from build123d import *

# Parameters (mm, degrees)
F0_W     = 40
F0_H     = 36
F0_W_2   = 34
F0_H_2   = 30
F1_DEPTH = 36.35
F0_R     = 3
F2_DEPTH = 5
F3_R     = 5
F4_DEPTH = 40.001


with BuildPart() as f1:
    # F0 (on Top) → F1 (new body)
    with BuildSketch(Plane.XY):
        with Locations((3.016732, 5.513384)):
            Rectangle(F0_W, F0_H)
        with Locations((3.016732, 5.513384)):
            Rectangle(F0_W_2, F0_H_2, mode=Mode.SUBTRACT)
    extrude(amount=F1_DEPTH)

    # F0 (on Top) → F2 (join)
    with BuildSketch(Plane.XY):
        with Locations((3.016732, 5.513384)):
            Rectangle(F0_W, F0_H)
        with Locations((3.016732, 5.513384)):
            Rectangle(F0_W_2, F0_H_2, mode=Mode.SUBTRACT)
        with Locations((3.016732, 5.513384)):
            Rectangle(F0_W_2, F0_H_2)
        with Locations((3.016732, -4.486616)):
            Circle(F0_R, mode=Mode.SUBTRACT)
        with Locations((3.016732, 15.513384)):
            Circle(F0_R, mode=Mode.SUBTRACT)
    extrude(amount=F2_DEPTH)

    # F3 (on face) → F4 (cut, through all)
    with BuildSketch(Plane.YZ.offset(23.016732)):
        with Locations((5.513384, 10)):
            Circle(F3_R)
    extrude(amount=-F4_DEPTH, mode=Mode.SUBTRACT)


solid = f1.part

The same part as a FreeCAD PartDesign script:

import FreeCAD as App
import Part
import Sketcher

V = App.Vector
Q = App.Units.Quantity

doc = App.newDocument("Part")
body = doc.addObject("PartDesign::Body", "Body")

# Sketch on XY plane
sketch1 = doc.addObject("Sketcher::SketchObject", "Sketch")
body.addObject(sketch1)
sketch1.AttachmentSupport = (doc.XY_Plane, [""])
sketch1.MapMode = "FlatFace"
sketch1.addGeometry([
    Part.LineSegment(V(-17, 24, 0), V(-17, -12, 0)),  # 0
    Part.LineSegment(V(-17, -12, 0), V(23, -12, 0)),  # 1
    Part.LineSegment(V(23, -12, 0), V(23, 24, 0)),  # 2
    Part.LineSegment(V(23, 24, 0), V(-17, 24, 0)),  # 3
    Part.LineSegment(V(20, -9, 0), V(-14, -9, 0)),  # 4
    Part.LineSegment(V(-14, -9, 0), V(-14, 21, 0)),  # 5
    Part.LineSegment(V(-14, 21, 0), V(20, 21, 0)),  # 6
    Part.LineSegment(V(20, 21, 0), V(20, -9, 0)),  # 7
], False)
sketch1.addConstraint([
    Sketcher.Constraint("Coincident", 0, 2, 1, 1),
    Sketcher.Constraint("Coincident", 1, 2, 2, 1),
    Sketcher.Constraint("Coincident", 2, 2, 3, 1),
    Sketcher.Constraint("Coincident", 3, 2, 0, 1),
    Sketcher.Constraint("Coincident", 4, 2, 5, 1),
    Sketcher.Constraint("Coincident", 5, 2, 6, 1),
    Sketcher.Constraint("Coincident", 6, 2, 7, 1),
    Sketcher.Constraint("Coincident", 7, 2, 4, 1),
    Sketcher.Constraint("Vertical", 0),
    Sketcher.Constraint("Horizontal", 1),
    Sketcher.Constraint("Vertical", 2),
    Sketcher.Constraint("Horizontal", 3),
    Sketcher.Constraint("Horizontal", 4),
    Sketcher.Constraint("Vertical", 5),
    Sketcher.Constraint("Horizontal", 6),
    Sketcher.Constraint("Vertical", 7),
    Sketcher.Constraint("DistanceX", 1, 1, 1, 2, Q("40 mm")),
    Sketcher.Constraint("DistanceX", 4, 2, 4, 1, Q("34 mm")),
    Sketcher.Constraint("DistanceY", 0, 2, 0, 1, Q("36 mm")),
    Sketcher.Constraint("DistanceY", 5, 1, 5, 2, Q("30 mm")),
    Sketcher.Constraint("DistanceX", 0, 2, 4, 2, Q("3 mm")),
    Sketcher.Constraint("DistanceY", 0, 2, 4, 2, Q("3 mm")),
    Sketcher.Constraint("DistanceX", 4, 2, -1, 1, Q("13.983268 mm")),
    Sketcher.Constraint("DistanceY", 0, 2, -1, 1, Q("12.486616 mm")),
])
pad1 = doc.addObject("PartDesign::Pad", "Pad")
body.addObject(pad1)
pad1.Profile = sketch1
pad1.Length = 36.35

# Sketch on XY plane
sketch2 = doc.addObject("Sketcher::SketchObject", "Sketch001")
body.addObject(sketch2)
sketch2.AttachmentSupport = (doc.XY_Plane, [""])
sketch2.MapMode = "FlatFace"
sketch2.addGeometry([
    Part.LineSegment(V(-17, 23.5, 0), V(-17, -12.5, 0)),  # 0
    Part.LineSegment(V(-17, -12.5, 0), V(23, -12.5, 0)),  # 1
    Part.LineSegment(V(23, -12.5, 0), V(23, 23.5, 0)),  # 2
    Part.LineSegment(V(23, 23.5, 0), V(-17, 23.5, 0)),  # 3
    Part.Circle(V(3, -4.5, 0), V(0, 0, 1), 3),  # 4
    Part.Circle(V(3, 15.5, 0), V(0, 0, 1), 3),  # 5
], False)
sketch2.addConstraint([
    Sketcher.Constraint("Coincident", 0, 2, 1, 1),
    Sketcher.Constraint("Coincident", 1, 2, 2, 1),
    Sketcher.Constraint("Coincident", 2, 2, 3, 1),
    Sketcher.Constraint("Coincident", 3, 2, 0, 1),
    Sketcher.Constraint("Vertical", 0),
    Sketcher.Constraint("Horizontal", 1),
    Sketcher.Constraint("Vertical", 2),
    Sketcher.Constraint("Horizontal", 3),
    Sketcher.Constraint("Equal", 4, 5),
    Sketcher.Constraint("Vertical", 4, 3, 5, 3),
    Sketcher.Constraint("Diameter", 4, Q("6 mm")),
    Sketcher.Constraint("DistanceX", 1, 1, 1, 2, Q("40 mm")),
    Sketcher.Constraint("DistanceY", 0, 2, 0, 1, Q("36 mm")),
    Sketcher.Constraint("DistanceY", 4, 3, 5, 3, Q("20 mm")),
    Sketcher.Constraint("DistanceX", 0, 2, 4, 3, Q("20 mm")),
    Sketcher.Constraint("DistanceY", 0, 2, 4, 3, Q("8 mm")),
    Sketcher.Constraint("DistanceX", -1, 1, 4, 3, Q("3.016732 mm")),
    Sketcher.Constraint("DistanceY", 4, 3, -1, 1, Q("4.486616 mm")),
])
pad2 = doc.addObject("PartDesign::Pad", "Pad001")
body.addObject(pad2)
pad2.Profile = sketch2
pad2.Length = 5

# Sketch on YZ plane
sketch3 = doc.addObject("Sketcher::SketchObject", "Sketch002")
body.addObject(sketch3)
sketch3.AttachmentSupport = (doc.YZ_Plane, [""])
sketch3.MapMode = "FlatFace"
sketch3.AttachmentOffset = App.Placement(V(0, 0, 23.016732), App.Rotation())
sketch3.addGeometry(Part.Circle(V(6, 10, 0), V(0, 0, 1), 5), False)
sketch3.addConstraint([
    Sketcher.Constraint("Diameter", 0, Q("10 mm")),
    Sketcher.Constraint("DistanceY", -1, 1, 0, 3, Q("10 mm")),
    Sketcher.Constraint("DistanceX", -1, 1, 0, 3, Q("5.513384 mm")),
])
pocket1 = doc.addObject("PartDesign::Pocket", "Pocket")
body.addObject(pocket1)
pocket1.Profile = sketch3
pocket1.Type = "ThroughAll"

doc.recompute()
